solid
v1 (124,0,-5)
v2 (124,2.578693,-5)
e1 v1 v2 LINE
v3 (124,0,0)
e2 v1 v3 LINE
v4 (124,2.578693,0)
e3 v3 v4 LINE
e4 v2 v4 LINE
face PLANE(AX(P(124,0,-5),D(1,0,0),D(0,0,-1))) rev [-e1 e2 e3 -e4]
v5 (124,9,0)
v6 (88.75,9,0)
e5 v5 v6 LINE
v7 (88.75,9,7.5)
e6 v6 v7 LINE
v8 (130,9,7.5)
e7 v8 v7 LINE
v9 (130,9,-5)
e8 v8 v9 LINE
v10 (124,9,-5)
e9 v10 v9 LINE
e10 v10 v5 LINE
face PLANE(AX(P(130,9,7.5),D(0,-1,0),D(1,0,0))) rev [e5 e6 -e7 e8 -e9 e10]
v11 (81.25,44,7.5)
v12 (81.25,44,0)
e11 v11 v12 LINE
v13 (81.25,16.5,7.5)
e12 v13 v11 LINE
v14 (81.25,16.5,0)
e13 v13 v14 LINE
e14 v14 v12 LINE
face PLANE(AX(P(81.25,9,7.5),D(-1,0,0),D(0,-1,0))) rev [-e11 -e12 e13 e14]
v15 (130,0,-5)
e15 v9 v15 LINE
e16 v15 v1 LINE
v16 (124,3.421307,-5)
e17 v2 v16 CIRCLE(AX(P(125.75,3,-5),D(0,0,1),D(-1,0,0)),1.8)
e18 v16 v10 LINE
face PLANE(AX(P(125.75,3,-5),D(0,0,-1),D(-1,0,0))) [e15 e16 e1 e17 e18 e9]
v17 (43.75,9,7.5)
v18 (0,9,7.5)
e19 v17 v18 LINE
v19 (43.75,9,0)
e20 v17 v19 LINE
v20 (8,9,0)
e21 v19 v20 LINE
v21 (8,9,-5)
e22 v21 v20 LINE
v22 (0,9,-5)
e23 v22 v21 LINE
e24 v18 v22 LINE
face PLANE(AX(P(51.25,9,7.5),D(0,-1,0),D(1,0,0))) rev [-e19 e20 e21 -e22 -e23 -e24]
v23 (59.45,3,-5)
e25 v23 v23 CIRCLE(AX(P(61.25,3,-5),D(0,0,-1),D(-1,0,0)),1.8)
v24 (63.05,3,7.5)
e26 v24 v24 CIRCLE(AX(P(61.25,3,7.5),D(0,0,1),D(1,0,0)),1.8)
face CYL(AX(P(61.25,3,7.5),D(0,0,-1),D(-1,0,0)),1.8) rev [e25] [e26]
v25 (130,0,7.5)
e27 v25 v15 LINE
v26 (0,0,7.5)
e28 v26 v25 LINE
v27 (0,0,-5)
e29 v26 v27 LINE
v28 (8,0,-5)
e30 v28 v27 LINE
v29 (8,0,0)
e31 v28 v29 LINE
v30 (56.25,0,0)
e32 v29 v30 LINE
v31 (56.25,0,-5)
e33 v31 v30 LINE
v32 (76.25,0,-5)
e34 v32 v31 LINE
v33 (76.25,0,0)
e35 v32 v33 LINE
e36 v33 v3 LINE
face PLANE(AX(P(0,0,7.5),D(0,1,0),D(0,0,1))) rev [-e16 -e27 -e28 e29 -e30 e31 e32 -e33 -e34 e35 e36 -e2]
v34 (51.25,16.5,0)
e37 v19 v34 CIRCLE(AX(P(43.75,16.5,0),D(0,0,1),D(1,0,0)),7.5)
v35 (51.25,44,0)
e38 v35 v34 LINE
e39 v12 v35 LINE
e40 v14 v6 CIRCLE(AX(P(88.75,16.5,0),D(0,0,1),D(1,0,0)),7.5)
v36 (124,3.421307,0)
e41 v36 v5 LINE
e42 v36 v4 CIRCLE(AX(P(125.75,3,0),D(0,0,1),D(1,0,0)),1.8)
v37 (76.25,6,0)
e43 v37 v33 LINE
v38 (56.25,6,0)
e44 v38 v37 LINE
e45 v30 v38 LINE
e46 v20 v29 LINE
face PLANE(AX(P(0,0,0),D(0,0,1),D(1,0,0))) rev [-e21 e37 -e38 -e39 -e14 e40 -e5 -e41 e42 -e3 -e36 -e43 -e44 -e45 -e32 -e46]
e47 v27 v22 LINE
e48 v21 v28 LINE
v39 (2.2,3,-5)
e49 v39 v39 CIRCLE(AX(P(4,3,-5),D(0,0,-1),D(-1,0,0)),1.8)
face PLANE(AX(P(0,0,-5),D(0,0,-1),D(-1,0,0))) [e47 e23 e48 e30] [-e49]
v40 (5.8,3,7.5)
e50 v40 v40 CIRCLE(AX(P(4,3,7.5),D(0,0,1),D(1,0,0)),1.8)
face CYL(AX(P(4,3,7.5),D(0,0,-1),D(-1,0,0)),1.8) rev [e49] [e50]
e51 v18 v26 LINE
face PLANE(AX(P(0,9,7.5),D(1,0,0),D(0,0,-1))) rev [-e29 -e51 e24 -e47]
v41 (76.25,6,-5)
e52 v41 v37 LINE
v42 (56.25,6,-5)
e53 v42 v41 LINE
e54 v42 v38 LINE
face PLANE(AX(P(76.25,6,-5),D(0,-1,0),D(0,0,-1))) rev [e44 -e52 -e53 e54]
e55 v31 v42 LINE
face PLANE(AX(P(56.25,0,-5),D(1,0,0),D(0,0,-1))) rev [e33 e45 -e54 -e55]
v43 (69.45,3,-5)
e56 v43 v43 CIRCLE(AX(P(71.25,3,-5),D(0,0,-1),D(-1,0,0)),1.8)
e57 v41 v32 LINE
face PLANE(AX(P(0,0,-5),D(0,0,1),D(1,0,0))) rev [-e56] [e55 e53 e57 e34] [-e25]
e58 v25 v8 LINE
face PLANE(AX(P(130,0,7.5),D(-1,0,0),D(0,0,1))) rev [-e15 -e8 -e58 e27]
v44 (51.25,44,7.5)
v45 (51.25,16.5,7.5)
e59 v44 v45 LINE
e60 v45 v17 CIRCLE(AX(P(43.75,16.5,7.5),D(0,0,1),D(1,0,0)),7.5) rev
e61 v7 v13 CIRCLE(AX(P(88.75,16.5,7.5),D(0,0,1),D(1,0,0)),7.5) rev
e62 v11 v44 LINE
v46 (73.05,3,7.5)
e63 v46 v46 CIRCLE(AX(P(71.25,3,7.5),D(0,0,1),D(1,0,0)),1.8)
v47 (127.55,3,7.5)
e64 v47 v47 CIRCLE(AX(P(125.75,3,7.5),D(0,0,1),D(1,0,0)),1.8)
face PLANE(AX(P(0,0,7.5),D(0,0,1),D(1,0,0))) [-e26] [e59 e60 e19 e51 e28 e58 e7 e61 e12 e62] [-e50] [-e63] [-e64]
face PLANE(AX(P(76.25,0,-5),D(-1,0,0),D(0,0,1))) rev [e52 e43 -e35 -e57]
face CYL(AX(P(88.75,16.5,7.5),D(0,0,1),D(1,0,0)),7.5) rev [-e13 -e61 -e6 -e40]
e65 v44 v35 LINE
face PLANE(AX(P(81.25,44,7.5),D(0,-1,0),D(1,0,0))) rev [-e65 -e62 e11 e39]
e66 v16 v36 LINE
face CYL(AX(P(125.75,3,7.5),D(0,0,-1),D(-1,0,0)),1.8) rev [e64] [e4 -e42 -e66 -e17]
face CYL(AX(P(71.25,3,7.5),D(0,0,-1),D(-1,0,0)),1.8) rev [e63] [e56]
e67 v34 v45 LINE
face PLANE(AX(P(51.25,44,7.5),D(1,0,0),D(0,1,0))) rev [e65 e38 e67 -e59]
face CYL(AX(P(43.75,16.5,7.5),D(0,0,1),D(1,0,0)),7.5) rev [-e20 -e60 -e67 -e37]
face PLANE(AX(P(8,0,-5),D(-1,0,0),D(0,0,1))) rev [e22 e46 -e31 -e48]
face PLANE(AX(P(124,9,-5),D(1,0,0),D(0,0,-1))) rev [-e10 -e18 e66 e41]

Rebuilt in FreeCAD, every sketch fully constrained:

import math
import FreeCAD as App
import Part
import Sketcher
Q = App.Units.Quantity


def edges_at(feature, points):
    """Names of the edges that pass closest to the given points."""
    edges = feature.Shape.Edges
    near = lambda p: min(range(len(edges)), key=lambda i: edges[i].distToShape(Part.Vertex(*p))[0])
    return sorted({f"Edge{near(p) + 1}" for p in points})

doc = App.newDocument("Part")
body = doc.addObject("PartDesign::Body", "Body")

# Sketch on XY plane
sketch1 = doc.addObject("Sketcher::SketchObject", "Sketch")
body.addObject(sketch1)
sketch1.AttachmentSupport = (doc.XY_Plane, [""])
sketch1.MapMode = "FlatFace"
sketch1.addGeometry(Part.LineSegment(App.Vector(130, 0, 0), App.Vector(130, 9, 0)), False)
sketch1.addGeometry(Part.LineSegment(App.Vector(130, 9, 0), App.Vector(81.25, 9, 0)), False)
sketch1.addGeometry(Part.LineSegment(App.Vector(81.25, 9, 0), App.Vector(81.25, 44, 0)), False)
sketch1.addGeometry(Part.LineSegment(App.Vector(81.25, 44, 0), App.Vector(51.25, 44, 0)), False)
sketch1.addGeometry(Part.LineSegment(App.Vector(51.25, 44, 0), App.Vector(51.25, 9, 0)), False)
sketch1.addGeometry(Part.LineSegment(App.Vector(51.25, 9, 0), App.Vector(0, 9, 0)), False)
sketch1.addGeometry(Part.LineSegment(App.Vector(0, 9, 0), App.Vector(0, 0, 0)), False)
sketch1.addGeometry(Part.LineSegment(App.Vector(0, 0, 0), App.Vector(130, 0, 0)), False)
sketch1.addGeometry(Part.Circle(App.Vector(4, 3, 0), App.Vector(0, 0, 1), 1.8), False)
sketch1.addGeometry(Part.Circle(App.Vector(61.25, 3, 0), App.Vector(0, 0, 1), 1.8), False)
sketch1.addGeometry(Part.Circle(App.Vector(71.25, 3, 0), App.Vector(0, 0, 1), 1.8), False)
sketch1.addGeometry(Part.Circle(App.Vector(125.75, 3, 0), App.Vector(0, 0, 1), 1.8), False)
sketch1.addConstraint(Sketcher.Constraint("Coincident", 0, 2, 1, 1))
sketch1.addConstraint(Sketcher.Constraint("Coincident", 1, 2, 2, 1))
sketch1.addConstraint(Sketcher.Constraint("Coincident", 2, 2, 3, 1))
sketch1.addConstraint(Sketcher.Constraint("Coincident", 3, 2, 4, 1))
sketch1.addConstraint(Sketcher.Constraint("Coincident", 4, 2, 5, 1))
sketch1.addConstraint(Sketcher.Constraint("Coincident", 5, 2, 6, 1))
sketch1.addConstraint(Sketcher.Constraint("Coincident", 6, 2, 7, 1))
sketch1.addConstraint(Sketcher.Constraint("Coincident", 7, 2, 0, 1))
sketch1.addConstraint(Sketcher.Constraint("Vertical", 0))
sketch1.addConstraint(Sketcher.Constraint("Horizontal", 1))
sketch1.addConstraint(Sketcher.Constraint("Vertical", 2))
sketch1.addConstraint(Sketcher.Constraint("Horizontal", 3))
sketch1.addConstraint(Sketcher.Constraint("Vertical", 4))
sketch1.addConstraint(Sketcher.Constraint("Horizontal", 5))
sketch1.addConstraint(Sketcher.Constraint("Vertical", 6))
sketch1.addConstraint(Sketcher.Constraint("Horizontal", 7))
sketch1.addConstraint(Sketcher.Constraint("Coincident", 6, 2, -1, 1))
sketch1.addConstraint(Sketcher.Constraint("Equal", 8, 9))
sketch1.addConstraint(Sketcher.Constraint("Equal", 9, 10))
sketch1.addConstraint(Sketcher.Constraint("Equal", 10, 11))
sketch1.addConstraint(Sketcher.Constraint("Horizontal", 8, 3, 9, 3))
sketch1.addConstraint(Sketcher.Constraint("Horizontal", 9, 3, 10, 3))
sketch1.addConstraint(Sketcher.Constraint("Horizontal", 10, 3, 11, 3))
sketch1.addConstraint(Sketcher.Constraint("Horizontal", 1, 2, 4, 2))
sketch1.addConstraint(Sketcher.Constraint("Diameter", 8, Q("3.6 mm")))
sketch1.addConstraint(Sketcher.Constraint("DistanceX", 3, 2, 3, 1, Q("30 mm")))
sketch1.addConstraint(Sketcher.Constraint("DistanceX", 7, 1, 7, 2, Q("130 mm")))
sketch1.addConstraint(Sketcher.Constraint("DistanceY", 0, 1, 0, 2, Q("9 mm")))
sketch1.addConstraint(Sketcher.Constraint("DistanceY", 2, 1, 2, 2, Q("35 mm")))
sketch1.addConstraint(Sketcher.Constraint("DistanceX", -1, 1, 8, 3, Q("4 mm")))
sketch1.addConstraint(Sketcher.Constraint("DistanceY", -1, 1, 8, 3, Q("3 mm")))
sketch1.addConstraint(Sketcher.Constraint("DistanceX", 9, 3, 10, 3, Q("10 mm")))
sketch1.addConstraint(Sketcher.Constraint("DistanceX", 10, 3, 1, 2, Q("10 mm")))
sketch1.addConstraint(Sketcher.Constraint("DistanceX", 1, 2, 1, 1, Q("48.75 mm")))
sketch1.addConstraint(Sketcher.Constraint("DistanceX", 10, 3, 11, 3, Q("54.5 mm")))
pad1 = doc.addObject("PartDesign::Pad", "Pad")
body.addObject(pad1)
pad1.Profile = sketch1
pad1.Length = 7.5
doc.recompute()

fillet = doc.addObject("PartDesign::Fillet", "Fillet")
body.addObject(fillet)
fillet.Base = (pad1, edges_at(pad1, [(51.25, 9, 3.75), (81.25, 9, 3.75)]))
fillet.Radius = 7.5

# Sketch on XY plane
sketch2 = doc.addObject("Sketcher::SketchObject", "Sketch001")
body.addObject(sketch2)
sketch2.AttachmentSupport = (doc.XY_Plane, [""])
sketch2.MapMode = "FlatFace"
sketch2.AttachmentOffset = App.Placement(App.Vector(0, 0, -5), App.Rotation())
sketch2.addGeometry(Part.LineSegment(App.Vector(76.25, 6, 0), App.Vector(76.25, 0, 0)), False)
sketch2.addGeometry(Part.LineSegment(App.Vector(76.25, 0, 0), App.Vector(56.25, 0, 0)), False)
sketch2.addGeometry(Part.LineSegment(App.Vector(56.25, 0, 0), App.Vector(56.25, 6, 0)), False)
sketch2.addGeometry(Part.LineSegment(App.Vector(56.25, 6, 0), App.Vector(76.25, 6, 0)), False)
sketch2.addGeometry(Part.Circle(App.Vector(71.25, 3, 0), App.Vector(0, 0, 1), 1.8), False)
sketch2.addGeometry(Part.Circle(App.Vector(61.25, 3, 0), App.Vector(0, 0, 1), 1.8), False)
sketch2.addGeometry(Part.LineSegment(App.Vector(8, 9, 0), App.Vector(8, 0, 0)), False)
sketch2.addGeometry(Part.LineSegment(App.Vector(8, 0, 0), App.Vector(0, 0, 0)), False)
sketch2.addGeometry(Part.LineSegment(App.Vector(0, 0, 0), App.Vector(0, 9, 0)), False)
sketch2.addGeometry(Part.LineSegment(App.Vector(0, 9, 0), App.Vector(8, 9, 0)), False)
sketch2.addGeometry(Part.Circle(App.Vector(4, 3, 0), App.Vector(0, 0, 1), 1.8), False)
sketch2.addGeometry(Part.LineSegment(App.Vector(130, 0, 0), App.Vector(124, 0, 0)), False)
sketch2.addGeometry(Part.LineSegment(App.Vector(124, 0, 0), App.Vector(124, 2.578693, 0)), False)
sketch2.addGeometry(Part.ArcOfCircle(Part.Circle(App.Vector(125.75, 3, 0), App.Vector(0, 0, 1), 1.8), math.radians(-166.463797), math.radians(166.463797)), False)
sketch2.addGeometry(Part.LineSegment(App.Vector(124, 3.421307, 0), App.Vector(124, 9, 0)), False)
sketch2.addGeometry(Part.LineSegment(App.Vector(124, 9, 0), App.Vector(130, 9, 0)), False)
sketch2.addGeometry(Part.LineSegment(App.Vector(130, 9, 0), App.Vector(130, 0, 0)), False)
sketch2.addConstraint(Sketcher.Constraint("Coincident", 0, 2, 1, 1))
sketch2.addConstraint(Sketcher.Constraint("Coincident", 1, 2, 2, 1))
sketch2.addConstraint(Sketcher.Constraint("Coincident", 2, 2, 3, 1))
sketch2.addConstraint(Sketcher.Constraint("Coincident", 3, 2, 0, 1))
sketch2.addConstraint(Sketcher.Constraint("Coincident", 6, 2, 7, 1))
sketch2.addConstraint(Sketcher.Constraint("Coincident", 7, 2, 8, 1))
sketch2.addConstraint(Sketcher.Constraint("Coincident", 8, 2, 9, 1))
sketch2.addConstraint(Sketcher.Constraint("Coincident", 9, 2, 6, 1))
sketch2.addConstraint(Sketcher.Constraint("Coincident", 11, 2, 12, 1))
sketch2.addConstraint(Sketcher.Constraint("Coincident", 12, 2, 13, 1))
sketch2.addConstraint(Sketcher.Constraint("Coincident", 13, 2, 14, 1))
sketch2.addConstraint(Sketcher.Constraint("Coincident", 14, 2, 15, 1))
sketch2.addConstraint(Sketcher.Constraint("Coincident", 15, 2, 16, 1))
sketch2.addConstraint(Sketcher.Constraint("Coincident", 16, 2, 11, 1))
sketch2.addConstraint(Sketcher.Constraint("Vertical", 0))
sketch2.addConstraint(Sketcher.Constraint("Horizontal", 1))
sketch2.addConstraint(Sketcher.Constraint("Vertical", 2))
sketch2.addConstraint(Sketcher.Constraint("Horizontal", 3))
sketch2.addConstraint(Sketcher.Constraint("Vertical", 6))
sketch2.addConstraint(Sketcher.Constraint("Horizontal", 7))
sketch2.addConstraint(Sketcher.Constraint("Vertical", 8))
sketch2.addConstraint(Sketcher.Constraint("Horizontal", 9))
sketch2.addConstraint(Sketcher.Constraint("Horizontal", 11))
sketch2.addConstraint(Sketcher.Constraint("Vertical", 12))
sketch2.addConstraint(Sketcher.Constraint("Vertical", 14))
sketch2.addConstraint(Sketcher.Constraint("Horizontal", 15))
sketch2.addConstraint(Sketcher.Constraint("Vertical", 16))
sketch2.addConstraint(Sketcher.Constraint("Coincident", 7, 2, -1, 1))
sketch2.addConstraint(Sketcher.Constraint("Equal", 4, 5))
sketch2.addConstraint(Sketcher.Constraint("Equal", 5, 10))
sketch2.addConstraint(Sketcher.Constraint("Equal", 10, 13))
sketch2.addConstraint(Sketcher.Constraint("PointOnObject", 0, 2, -1))
sketch2.addConstraint(Sketcher.Constraint("PointOnObject", 11, 2, -1))
sketch2.addConstraint(Sketcher.Constraint("Horizontal", 4, 3, 5, 3))
sketch2.addConstraint(Sketcher.Constraint("Horizontal", 5, 3, 10, 3))
sketch2.addConstraint(Sketcher.Constraint("Horizontal", 10, 3, 13, 3))
sketch2.addConstraint(Sketcher.Constraint("Horizontal", 9, 2, 14, 2))
sketch2.addConstraint(Sketcher.Constraint("Vertical", 12, 2, 13, 2))
sketch2.addConstraint(Sketcher.Constraint("Equal", 15, 0))
sketch2.addConstraint(Sketcher.Constraint("Diameter", 4, Q("3.6 mm")))
sketch2.addConstraint(Sketcher.Constraint("DistanceX", 1, 2, 1, 1, Q("20 mm")))
sketch2.addConstraint(Sketcher.Constraint("DistanceX", 7, 2, 7, 1, Q("8 mm")))
sketch2.addConstraint(Sketcher.Constraint("DistanceX", 11, 2, 11, 1, Q("6 mm")))
sketch2.addConstraint(Sketcher.Constraint("DistanceY", 6, 2, 6, 1, Q("9 mm")))
sketch2.addConstraint(Sketcher.Constraint("DistanceY", -1, 1, 4, 3, Q("3 mm")))
sketch2.addConstraint(Sketcher.Constraint("DistanceX", -1, 1, 10, 3, Q("4 mm")))
sketch2.addConstraint(Sketcher.Constraint("DistanceX", -1, 1, 11, 2, Q("124 mm")))
sketch2.addConstraint(Sketcher.Constraint("DistanceX", 5, 3, 4, 3, Q("10 mm")))
sketch2.addConstraint(Sketcher.Constraint("DistanceX", 4, 3, 0, 2, Q("5 mm")))
sketch2.addConstraint(Sketcher.Constraint("DistanceX", 4, 3, 13, 3, Q("54.5 mm")))
sketch2.addConstraint(Sketcher.Constraint("DistanceX", -1, 1, 4, 3, Q("71.25 mm")))
pad2 = doc.addObject("PartDesign::Pad", "Pad001")
body.addObject(pad2)
pad2.Profile = sketch2
pad2.Length = 5

doc.recompute()
